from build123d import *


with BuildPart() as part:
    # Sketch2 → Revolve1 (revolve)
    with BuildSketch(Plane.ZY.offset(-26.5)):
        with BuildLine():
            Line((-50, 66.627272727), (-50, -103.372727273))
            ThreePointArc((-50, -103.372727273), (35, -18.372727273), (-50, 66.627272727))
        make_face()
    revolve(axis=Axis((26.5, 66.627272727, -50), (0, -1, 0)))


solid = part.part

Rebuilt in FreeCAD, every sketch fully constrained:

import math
import FreeCAD as App
import Part
import Sketcher

doc = App.newDocument("Part")
body = doc.addObject("PartDesign::Body", "Body")

sketch1 = body.newObject("Sketcher::SketchObject", "Sketch")
sketch1.AttachmentSupport = (doc.getObject("YZ_Plane"), [""])
sketch1.MapMode = "FlatFace"
sketch1.AttachmentOffset = App.Placement(App.Vector(0, 0, 26.5), App.Rotation())
sketch1.addGeometry(Part.LineSegment(App.Vector(67, -50, 0), App.Vector(-103, -50, 0)), False)
sketch1.addGeometry(Part.ArcOfCircle(Part.Circle(App.Vector(-18, -50, 0), App.Vector(0, 0, 1), 85), math.radians(0), math.radians(180)), False)
sketch1.addGeometry(Part.LineSegment(App.Vector(67, -50, 0), App.Vector(-103, -50, 0)), True)
sketch1.addConstraint(Sketcher.Constraint("Coincident", 0, 1, 1, 1))
sketch1.addConstraint(Sketcher.Constraint("Coincident", 1, 2, 0, 2))
sketch1.addConstraint(Sketcher.Constraint("Horizontal", 0))
sketch1.addConstraint(Sketcher.Constraint("Horizontal", 2))
sketch1.addConstraint(Sketcher.Constraint("Coincident", 2, 1, 0, 1))
sketch1.addConstraint(Sketcher.Constraint("Horizontal", 1, 3, 0, 1))
sketch1.addConstraint(Sketcher.Constraint("Equal", 0, 2))
sketch1.addConstraint(Sketcher.Constraint("Radius", 1, 85.0))
sketch1.addConstraint(Sketcher.Constraint("DistanceY", 1, 3, -1, 1, 50.0))
sketch1.addConstraint(Sketcher.Constraint("DistanceX", 1, 3, -1, 1, 18.372727))
revolution = body.newObject("PartDesign::Revolution", "Revolution")
revolution.Profile = sketch1
revolution.ReferenceAxis = (sketch1, ["Axis0"])
revolution.Angle = 360

doc.recompute()
